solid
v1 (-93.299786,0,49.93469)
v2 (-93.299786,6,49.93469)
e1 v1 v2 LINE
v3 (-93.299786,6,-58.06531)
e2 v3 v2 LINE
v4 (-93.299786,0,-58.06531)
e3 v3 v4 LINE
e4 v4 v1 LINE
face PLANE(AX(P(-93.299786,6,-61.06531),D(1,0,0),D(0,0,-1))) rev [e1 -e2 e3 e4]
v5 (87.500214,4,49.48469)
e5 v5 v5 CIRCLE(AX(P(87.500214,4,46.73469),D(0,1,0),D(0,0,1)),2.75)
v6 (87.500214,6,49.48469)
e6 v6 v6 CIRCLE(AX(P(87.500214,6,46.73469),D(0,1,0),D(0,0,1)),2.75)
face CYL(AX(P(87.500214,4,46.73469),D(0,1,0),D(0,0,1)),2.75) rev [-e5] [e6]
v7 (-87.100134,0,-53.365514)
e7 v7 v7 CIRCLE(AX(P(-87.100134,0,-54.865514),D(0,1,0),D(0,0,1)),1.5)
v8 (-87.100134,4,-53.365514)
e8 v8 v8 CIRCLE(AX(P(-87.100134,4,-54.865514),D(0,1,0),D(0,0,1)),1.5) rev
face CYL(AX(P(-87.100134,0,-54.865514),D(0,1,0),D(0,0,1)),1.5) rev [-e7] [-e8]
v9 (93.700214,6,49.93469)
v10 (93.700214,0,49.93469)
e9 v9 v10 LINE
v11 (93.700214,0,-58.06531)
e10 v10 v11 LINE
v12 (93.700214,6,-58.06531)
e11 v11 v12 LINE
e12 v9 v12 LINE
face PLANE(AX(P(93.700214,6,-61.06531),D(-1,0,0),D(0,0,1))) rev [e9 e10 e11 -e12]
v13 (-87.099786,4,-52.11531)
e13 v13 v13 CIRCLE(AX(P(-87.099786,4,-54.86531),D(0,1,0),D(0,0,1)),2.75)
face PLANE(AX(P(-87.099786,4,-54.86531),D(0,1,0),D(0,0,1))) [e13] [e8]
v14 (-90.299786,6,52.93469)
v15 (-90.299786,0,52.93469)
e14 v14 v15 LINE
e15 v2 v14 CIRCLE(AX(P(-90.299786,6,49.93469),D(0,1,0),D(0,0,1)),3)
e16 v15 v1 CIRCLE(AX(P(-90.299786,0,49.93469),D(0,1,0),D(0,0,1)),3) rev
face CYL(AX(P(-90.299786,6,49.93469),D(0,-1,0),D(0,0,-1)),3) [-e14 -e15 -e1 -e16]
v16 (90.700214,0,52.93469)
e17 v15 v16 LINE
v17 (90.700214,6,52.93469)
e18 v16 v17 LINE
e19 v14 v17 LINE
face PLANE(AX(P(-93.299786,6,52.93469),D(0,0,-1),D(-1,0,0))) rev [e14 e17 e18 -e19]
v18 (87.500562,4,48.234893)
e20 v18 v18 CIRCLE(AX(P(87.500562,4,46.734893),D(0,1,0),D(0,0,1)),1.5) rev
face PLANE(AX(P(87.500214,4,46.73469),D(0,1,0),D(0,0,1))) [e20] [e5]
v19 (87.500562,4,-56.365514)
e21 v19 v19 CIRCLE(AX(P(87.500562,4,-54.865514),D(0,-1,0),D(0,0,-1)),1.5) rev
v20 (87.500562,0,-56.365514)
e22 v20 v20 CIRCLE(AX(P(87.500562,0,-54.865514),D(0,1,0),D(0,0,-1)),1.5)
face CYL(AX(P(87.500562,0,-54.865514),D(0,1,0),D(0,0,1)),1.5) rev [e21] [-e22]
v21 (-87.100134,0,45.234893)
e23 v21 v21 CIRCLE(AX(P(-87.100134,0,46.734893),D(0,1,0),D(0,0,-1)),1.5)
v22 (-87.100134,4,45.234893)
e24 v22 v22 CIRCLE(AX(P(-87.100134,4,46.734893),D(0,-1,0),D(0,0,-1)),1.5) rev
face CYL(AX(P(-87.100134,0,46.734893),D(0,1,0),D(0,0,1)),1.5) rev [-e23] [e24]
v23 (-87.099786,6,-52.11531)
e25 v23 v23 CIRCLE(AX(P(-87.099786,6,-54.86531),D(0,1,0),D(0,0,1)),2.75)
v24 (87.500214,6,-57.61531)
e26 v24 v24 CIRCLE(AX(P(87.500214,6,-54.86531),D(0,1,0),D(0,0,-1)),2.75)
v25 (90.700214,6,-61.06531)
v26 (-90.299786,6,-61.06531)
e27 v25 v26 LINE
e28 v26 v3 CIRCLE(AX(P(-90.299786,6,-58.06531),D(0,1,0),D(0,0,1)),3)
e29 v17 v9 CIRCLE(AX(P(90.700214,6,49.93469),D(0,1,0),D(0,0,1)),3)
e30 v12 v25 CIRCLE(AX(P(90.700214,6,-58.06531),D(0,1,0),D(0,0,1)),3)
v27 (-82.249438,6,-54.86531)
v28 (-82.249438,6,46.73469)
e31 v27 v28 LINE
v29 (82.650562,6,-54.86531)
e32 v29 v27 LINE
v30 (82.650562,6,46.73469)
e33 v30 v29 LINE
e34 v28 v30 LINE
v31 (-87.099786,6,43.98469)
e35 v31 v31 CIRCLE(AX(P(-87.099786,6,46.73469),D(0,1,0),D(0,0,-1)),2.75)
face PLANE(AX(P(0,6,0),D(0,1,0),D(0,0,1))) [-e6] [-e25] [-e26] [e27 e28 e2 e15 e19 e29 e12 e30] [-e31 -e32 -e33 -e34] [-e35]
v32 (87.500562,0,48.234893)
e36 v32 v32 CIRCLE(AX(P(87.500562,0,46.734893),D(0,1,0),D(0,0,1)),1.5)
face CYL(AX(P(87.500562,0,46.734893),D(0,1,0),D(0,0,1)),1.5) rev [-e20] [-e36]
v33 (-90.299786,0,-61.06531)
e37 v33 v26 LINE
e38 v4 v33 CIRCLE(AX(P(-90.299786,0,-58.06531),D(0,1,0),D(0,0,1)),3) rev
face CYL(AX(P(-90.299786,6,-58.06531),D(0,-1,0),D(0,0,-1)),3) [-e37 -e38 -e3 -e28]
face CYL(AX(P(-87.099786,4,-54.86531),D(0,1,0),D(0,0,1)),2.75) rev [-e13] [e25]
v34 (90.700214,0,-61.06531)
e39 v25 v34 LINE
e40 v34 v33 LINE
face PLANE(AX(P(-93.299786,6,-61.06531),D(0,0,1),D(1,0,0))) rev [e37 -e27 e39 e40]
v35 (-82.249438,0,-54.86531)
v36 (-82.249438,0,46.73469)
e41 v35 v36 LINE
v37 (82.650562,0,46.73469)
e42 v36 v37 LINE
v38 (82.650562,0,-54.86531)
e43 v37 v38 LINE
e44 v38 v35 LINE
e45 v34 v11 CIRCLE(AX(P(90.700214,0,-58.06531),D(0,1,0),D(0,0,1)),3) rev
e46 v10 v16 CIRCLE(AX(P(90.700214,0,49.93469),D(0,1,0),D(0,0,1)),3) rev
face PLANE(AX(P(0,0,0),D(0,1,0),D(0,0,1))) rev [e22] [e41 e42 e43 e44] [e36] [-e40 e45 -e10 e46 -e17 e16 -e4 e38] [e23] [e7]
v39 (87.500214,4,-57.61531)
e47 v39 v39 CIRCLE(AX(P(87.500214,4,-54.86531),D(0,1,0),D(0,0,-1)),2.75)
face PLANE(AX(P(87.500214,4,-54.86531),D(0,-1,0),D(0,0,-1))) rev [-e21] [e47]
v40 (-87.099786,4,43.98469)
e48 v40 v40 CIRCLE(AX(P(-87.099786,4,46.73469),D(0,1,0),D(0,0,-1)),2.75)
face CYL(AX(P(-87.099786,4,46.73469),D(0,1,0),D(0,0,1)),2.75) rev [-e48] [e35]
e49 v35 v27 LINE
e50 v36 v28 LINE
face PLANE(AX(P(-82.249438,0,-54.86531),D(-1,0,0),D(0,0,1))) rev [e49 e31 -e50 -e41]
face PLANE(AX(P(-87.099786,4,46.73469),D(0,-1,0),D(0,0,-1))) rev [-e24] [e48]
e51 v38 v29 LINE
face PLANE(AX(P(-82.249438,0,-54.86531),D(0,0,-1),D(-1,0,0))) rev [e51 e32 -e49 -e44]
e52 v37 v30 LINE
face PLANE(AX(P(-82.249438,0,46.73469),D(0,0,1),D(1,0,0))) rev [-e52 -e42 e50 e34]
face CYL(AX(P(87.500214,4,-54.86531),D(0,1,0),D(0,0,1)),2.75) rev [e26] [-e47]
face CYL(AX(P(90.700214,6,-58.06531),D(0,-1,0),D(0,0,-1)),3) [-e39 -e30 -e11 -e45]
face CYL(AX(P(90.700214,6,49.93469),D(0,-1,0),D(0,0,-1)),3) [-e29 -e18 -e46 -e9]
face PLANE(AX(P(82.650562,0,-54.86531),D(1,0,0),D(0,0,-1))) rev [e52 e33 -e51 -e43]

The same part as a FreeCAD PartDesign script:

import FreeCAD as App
import Part
import Sketcher


def edges_at(feature, points):
    """Names of the edges that pass closest to the given points."""
    edges = feature.Shape.Edges
    near = lambda p: min(range(len(edges)), key=lambda i: edges[i].distToShape(Part.Vertex(*p))[0])
    return sorted({f"Edge{near(p) + 1}" for p in points})

doc = App.newDocument("Part")
params = doc.addObject("Spreadsheet::Sheet", "Params")
for row, (alias, value) in enumerate([
    ("sketch1_width", "187 mm"),
    ("sketch1_height", "114 mm"),
    ("pad1_length", "6 mm"),
    ("fillet_radius", "3 mm"),
    ("sketch2_width", "164.9 mm"),
    ("sketch2_height", "101.6 mm"),
    ("pocket1_length", "6 mm"),
    ("sketch3_diameter", "3 mm"),
    ("pocket2_length", "6 mm"),
    ("sketch4_diameter", "5.5 mm"),
    ("pocket3_length", "2 mm"),
], start=1):
    params.set(f"A{row}", alias)
    params.set(f"B{row}", "=" + value)
    params.setAlias(f"B{row}", alias)

body = doc.addObject("PartDesign::Body", "Body")

# Sketch on XZ plane
sketch1 = body.newObject("Sketcher::SketchObject", "Sketch")
sketch1.AttachmentSupport = (doc.getObject("XZ_Plane"), [""])
sketch1.MapMode = "FlatFace"
sketch1.addGeometry([
    Part.LineSegment(App.Vector(-93, -61, 0), App.Vector(-93, 53, 0)),
    Part.LineSegment(App.Vector(-93, 53, 0), App.Vector(94, 53, 0)),
    Part.LineSegment(App.Vector(94, 53, 0), App.Vector(94, -61, 0)),
    Part.LineSegment(App.Vector(94, -61, 0), App.Vector(-93, -61, 0)),
], False)
sketch1.addConstraint([
    Sketcher.Constraint("Coincident", 0, 2, 1, 1),
    Sketcher.Constraint("Coincident", 1, 2, 2, 1),
    Sketcher.Constraint("Coincident", 2, 2, 3, 1),
    Sketcher.Constraint("Coincident", 3, 2, 0, 1),
    Sketcher.Constraint("Vertical", 0),
    Sketcher.Constraint("Horizontal", 1),
    Sketcher.Constraint("Vertical", 2),
    Sketcher.Constraint("Horizontal", 3),
    Sketcher.Constraint("DistanceX", 1, 1, 1, 2, 187.0),
    Sketcher.Constraint("DistanceY", 0, 1, 0, 2, 114.0),
    Sketcher.Constraint("DistanceY", -1, 1, 0, 2, 52.93469),
    Sketcher.Constraint("DistanceX", 0, 2, -1, 1, 93.299786),
])
sketch1.setExpression("Constraints[8]", "Params.sketch1_width")
sketch1.setExpression("Constraints[9]", "Params.sketch1_height")
pad1 = body.newObject("PartDesign::Pad", "Pad")
pad1.Profile = sketch1
pad1.setExpression("Length", "Params.pad1_length")
pad1.Reversed = True
doc.recompute()

fillet = body.newObject("PartDesign::Fillet", "Fillet")
fillet.Base = (pad1, edges_at(pad1, [
    (-93.3, 3, -61.065),
    (93.7, 3, -61.065),
    (93.7, 3, 52.935),
    (-93.3, 3, 52.935),
]))
fillet.setExpression("Radius", "Params.fillet_radius")

# Sketch on XZ plane
sketch2 = body.newObject("Sketcher::SketchObject", "Sketch001")
sketch2.AttachmentSupport = (doc.getObject("XZ_Plane"), [""])
sketch2.MapMode = "FlatFace"
sketch2.AttachmentOffset = App.Placement(App.Vector(0, 0, -6), App.Rotation())
sketch2.addGeometry([
    Part.LineSegment(App.Vector(-82, -55, 0), App.Vector(-82, 47, 0)),
    Part.LineSegment(App.Vector(-82, 47, 0), App.Vector(83, 47, 0)),
    Part.LineSegment(App.Vector(83, 47, 0), App.Vector(83, -55, 0)),
    Part.LineSegment(App.Vector(83, -55, 0), App.Vector(-82, -55, 0)),
], False)
sketch2.addConstraint([
    Sketcher.Constraint("Coincident", 0, 2, 1, 1),
    Sketcher.Constraint("Coincident", 1, 2, 2, 1),
    Sketcher.Constraint("Coincident", 2, 2, 3, 1),
    Sketcher.Constraint("Coincident", 3, 2, 0, 1),
    Sketcher.Constraint("Vertical", 0),
    Sketcher.Constraint("Horizontal", 1),
    Sketcher.Constraint("Vertical", 2),
    Sketcher.Constraint("Horizontal", 3),
    Sketcher.Constraint("DistanceX", 1, 1, 1, 2, 164.9),
    Sketcher.Constraint("DistanceY", 0, 1, 0, 2, 101.6),
    Sketcher.Constraint("DistanceY", -1, 1, 0, 2, 46.73469),
    Sketcher.Constraint("DistanceX", 0, 2, -1, 1, 82.249438),
])
sketch2.setExpression("Constraints[8]", "Params.sketch2_width")
sketch2.setExpression("Constraints[9]", "Params.sketch2_height")
pocket1 = body.newObject("PartDesign::Pocket", "Pocket")
pocket1.Profile = sketch2
pocket1.setExpression("Length", "Params.pocket1_length")
pocket1.Reversed = True

# Sketch on XZ plane
sketch3 = body.newObject("Sketcher::SketchObject", "Sketch002")
sketch3.AttachmentSupport = (doc.getObject("XZ_Plane"), [""])
sketch3.MapMode = "FlatFace"
sketch3.AttachmentOffset = App.Placement(App.Vector(0, 0, -6), App.Rotation())
sketch3.addGeometry([
    Part.Circle(App.Vector(87.5, 46.7, 0), App.Vector(0, 0, 1), 1.5),
    Part.Circle(App.Vector(87.5, -54.9, 0), App.Vector(0, 0, 1), 1.5),
    Part.Circle(App.Vector(-87.1, 46.7, 0), App.Vector(0, 0, 1), 1.5),
    Part.Circle(App.Vector(-87.1, -54.9, 0), App.Vector(0, 0, 1), 1.5),
], False)
sketch3.addConstraint([
    Sketcher.Constraint("Equal", 0, 1),
    Sketcher.Constraint("Equal", 1, 2),
    Sketcher.Constraint("Equal", 2, 3),
    Sketcher.Constraint("Horizontal", 0, 3, 2, 3),
    Sketcher.Constraint("Horizontal", 1, 3, 3, 3),
    Sketcher.Constraint("Vertical", 0, 3, 1, 3),
    Sketcher.Constraint("Vertical", 2, 3, 3, 3),
    Sketcher.Constraint("Diameter", 0, 3.0),
    Sketcher.Constraint("DistanceX", -1, 1, 0, 3, 87.500562),
    Sketcher.Constraint("DistanceY", -1, 1, 0, 3, 46.734893),
    Sketcher.Constraint("DistanceY", 1, 3, -1, 1, 54.865514),
    Sketcher.Constraint("DistanceX", 2, 3, -1, 1, 87.100134),
])
sketch3.setExpression("Constraints[7]", "Params.sketch3_diameter")
pocket2 = body.newObject("PartDesign::Pocket", "Pocket001")
pocket2.Profile = sketch3
pocket2.setExpression("Length", "Params.pocket2_length")
pocket2.Reversed = True

# Sketch on XZ plane
sketch4 = body.newObject("Sketcher::SketchObject", "Sketch003")
sketch4.AttachmentSupport = (doc.getObject("XZ_Plane"), [""])
sketch4.MapMode = "FlatFace"
sketch4.AttachmentOffset = App.Placement(App.Vector(0, 0, -6), App.Rotation())
sketch4.addGeometry([
    Part.Circle(App.Vector(-87.1, -54.9, 0), App.Vector(0, 0, 1), 2.8),
    Part.Circle(App.Vector(87.5, -54.9, 0), App.Vector(0, 0, 1), 2.8),
    Part.Circle(App.Vector(-87.1, 46.7, 0), App.Vector(0, 0, 1), 2.8),
    Part.Circle(App.Vector(87.5, 46.7, 0), App.Vector(0, 0, 1), 2.8),
], False)
sketch4.addConstraint([
    Sketcher.Constraint("Equal", 0, 1),
    Sketcher.Constraint("Equal", 1, 2),
    Sketcher.Constraint("Equal", 2, 3),
    Sketcher.Constraint("Horizontal", 0, 3, 1, 3),
    Sketcher.Constraint("Horizontal", 2, 3, 3, 3),
    Sketcher.Constraint("Vertical", 0, 3, 2, 3),
    Sketcher.Constraint("Vertical", 1, 3, 3, 3),
    Sketcher.Constraint("Diameter", 0, 5.5),
    Sketcher.Constraint("DistanceX", 0, 3, 1, 3, 174.6),
    Sketcher.Constraint("DistanceY", 0, 3, 2, 3, 101.6),
    Sketcher.Constraint("DistanceY", 0, 3, -1, 1, 54.86531),
    Sketcher.Constraint("DistanceX", 0, 3, -1, 1, 87.099786),
])
sketch4.setExpression("Constraints[7]", "Params.sketch4_diameter")
pocket3 = body.newObject("PartDesign::Pocket", "Pocket002")
pocket3.Profile = sketch4
pocket3.setExpression("Length", "Params.pocket3_length")
pocket3.Reversed = True

doc.recompute()
